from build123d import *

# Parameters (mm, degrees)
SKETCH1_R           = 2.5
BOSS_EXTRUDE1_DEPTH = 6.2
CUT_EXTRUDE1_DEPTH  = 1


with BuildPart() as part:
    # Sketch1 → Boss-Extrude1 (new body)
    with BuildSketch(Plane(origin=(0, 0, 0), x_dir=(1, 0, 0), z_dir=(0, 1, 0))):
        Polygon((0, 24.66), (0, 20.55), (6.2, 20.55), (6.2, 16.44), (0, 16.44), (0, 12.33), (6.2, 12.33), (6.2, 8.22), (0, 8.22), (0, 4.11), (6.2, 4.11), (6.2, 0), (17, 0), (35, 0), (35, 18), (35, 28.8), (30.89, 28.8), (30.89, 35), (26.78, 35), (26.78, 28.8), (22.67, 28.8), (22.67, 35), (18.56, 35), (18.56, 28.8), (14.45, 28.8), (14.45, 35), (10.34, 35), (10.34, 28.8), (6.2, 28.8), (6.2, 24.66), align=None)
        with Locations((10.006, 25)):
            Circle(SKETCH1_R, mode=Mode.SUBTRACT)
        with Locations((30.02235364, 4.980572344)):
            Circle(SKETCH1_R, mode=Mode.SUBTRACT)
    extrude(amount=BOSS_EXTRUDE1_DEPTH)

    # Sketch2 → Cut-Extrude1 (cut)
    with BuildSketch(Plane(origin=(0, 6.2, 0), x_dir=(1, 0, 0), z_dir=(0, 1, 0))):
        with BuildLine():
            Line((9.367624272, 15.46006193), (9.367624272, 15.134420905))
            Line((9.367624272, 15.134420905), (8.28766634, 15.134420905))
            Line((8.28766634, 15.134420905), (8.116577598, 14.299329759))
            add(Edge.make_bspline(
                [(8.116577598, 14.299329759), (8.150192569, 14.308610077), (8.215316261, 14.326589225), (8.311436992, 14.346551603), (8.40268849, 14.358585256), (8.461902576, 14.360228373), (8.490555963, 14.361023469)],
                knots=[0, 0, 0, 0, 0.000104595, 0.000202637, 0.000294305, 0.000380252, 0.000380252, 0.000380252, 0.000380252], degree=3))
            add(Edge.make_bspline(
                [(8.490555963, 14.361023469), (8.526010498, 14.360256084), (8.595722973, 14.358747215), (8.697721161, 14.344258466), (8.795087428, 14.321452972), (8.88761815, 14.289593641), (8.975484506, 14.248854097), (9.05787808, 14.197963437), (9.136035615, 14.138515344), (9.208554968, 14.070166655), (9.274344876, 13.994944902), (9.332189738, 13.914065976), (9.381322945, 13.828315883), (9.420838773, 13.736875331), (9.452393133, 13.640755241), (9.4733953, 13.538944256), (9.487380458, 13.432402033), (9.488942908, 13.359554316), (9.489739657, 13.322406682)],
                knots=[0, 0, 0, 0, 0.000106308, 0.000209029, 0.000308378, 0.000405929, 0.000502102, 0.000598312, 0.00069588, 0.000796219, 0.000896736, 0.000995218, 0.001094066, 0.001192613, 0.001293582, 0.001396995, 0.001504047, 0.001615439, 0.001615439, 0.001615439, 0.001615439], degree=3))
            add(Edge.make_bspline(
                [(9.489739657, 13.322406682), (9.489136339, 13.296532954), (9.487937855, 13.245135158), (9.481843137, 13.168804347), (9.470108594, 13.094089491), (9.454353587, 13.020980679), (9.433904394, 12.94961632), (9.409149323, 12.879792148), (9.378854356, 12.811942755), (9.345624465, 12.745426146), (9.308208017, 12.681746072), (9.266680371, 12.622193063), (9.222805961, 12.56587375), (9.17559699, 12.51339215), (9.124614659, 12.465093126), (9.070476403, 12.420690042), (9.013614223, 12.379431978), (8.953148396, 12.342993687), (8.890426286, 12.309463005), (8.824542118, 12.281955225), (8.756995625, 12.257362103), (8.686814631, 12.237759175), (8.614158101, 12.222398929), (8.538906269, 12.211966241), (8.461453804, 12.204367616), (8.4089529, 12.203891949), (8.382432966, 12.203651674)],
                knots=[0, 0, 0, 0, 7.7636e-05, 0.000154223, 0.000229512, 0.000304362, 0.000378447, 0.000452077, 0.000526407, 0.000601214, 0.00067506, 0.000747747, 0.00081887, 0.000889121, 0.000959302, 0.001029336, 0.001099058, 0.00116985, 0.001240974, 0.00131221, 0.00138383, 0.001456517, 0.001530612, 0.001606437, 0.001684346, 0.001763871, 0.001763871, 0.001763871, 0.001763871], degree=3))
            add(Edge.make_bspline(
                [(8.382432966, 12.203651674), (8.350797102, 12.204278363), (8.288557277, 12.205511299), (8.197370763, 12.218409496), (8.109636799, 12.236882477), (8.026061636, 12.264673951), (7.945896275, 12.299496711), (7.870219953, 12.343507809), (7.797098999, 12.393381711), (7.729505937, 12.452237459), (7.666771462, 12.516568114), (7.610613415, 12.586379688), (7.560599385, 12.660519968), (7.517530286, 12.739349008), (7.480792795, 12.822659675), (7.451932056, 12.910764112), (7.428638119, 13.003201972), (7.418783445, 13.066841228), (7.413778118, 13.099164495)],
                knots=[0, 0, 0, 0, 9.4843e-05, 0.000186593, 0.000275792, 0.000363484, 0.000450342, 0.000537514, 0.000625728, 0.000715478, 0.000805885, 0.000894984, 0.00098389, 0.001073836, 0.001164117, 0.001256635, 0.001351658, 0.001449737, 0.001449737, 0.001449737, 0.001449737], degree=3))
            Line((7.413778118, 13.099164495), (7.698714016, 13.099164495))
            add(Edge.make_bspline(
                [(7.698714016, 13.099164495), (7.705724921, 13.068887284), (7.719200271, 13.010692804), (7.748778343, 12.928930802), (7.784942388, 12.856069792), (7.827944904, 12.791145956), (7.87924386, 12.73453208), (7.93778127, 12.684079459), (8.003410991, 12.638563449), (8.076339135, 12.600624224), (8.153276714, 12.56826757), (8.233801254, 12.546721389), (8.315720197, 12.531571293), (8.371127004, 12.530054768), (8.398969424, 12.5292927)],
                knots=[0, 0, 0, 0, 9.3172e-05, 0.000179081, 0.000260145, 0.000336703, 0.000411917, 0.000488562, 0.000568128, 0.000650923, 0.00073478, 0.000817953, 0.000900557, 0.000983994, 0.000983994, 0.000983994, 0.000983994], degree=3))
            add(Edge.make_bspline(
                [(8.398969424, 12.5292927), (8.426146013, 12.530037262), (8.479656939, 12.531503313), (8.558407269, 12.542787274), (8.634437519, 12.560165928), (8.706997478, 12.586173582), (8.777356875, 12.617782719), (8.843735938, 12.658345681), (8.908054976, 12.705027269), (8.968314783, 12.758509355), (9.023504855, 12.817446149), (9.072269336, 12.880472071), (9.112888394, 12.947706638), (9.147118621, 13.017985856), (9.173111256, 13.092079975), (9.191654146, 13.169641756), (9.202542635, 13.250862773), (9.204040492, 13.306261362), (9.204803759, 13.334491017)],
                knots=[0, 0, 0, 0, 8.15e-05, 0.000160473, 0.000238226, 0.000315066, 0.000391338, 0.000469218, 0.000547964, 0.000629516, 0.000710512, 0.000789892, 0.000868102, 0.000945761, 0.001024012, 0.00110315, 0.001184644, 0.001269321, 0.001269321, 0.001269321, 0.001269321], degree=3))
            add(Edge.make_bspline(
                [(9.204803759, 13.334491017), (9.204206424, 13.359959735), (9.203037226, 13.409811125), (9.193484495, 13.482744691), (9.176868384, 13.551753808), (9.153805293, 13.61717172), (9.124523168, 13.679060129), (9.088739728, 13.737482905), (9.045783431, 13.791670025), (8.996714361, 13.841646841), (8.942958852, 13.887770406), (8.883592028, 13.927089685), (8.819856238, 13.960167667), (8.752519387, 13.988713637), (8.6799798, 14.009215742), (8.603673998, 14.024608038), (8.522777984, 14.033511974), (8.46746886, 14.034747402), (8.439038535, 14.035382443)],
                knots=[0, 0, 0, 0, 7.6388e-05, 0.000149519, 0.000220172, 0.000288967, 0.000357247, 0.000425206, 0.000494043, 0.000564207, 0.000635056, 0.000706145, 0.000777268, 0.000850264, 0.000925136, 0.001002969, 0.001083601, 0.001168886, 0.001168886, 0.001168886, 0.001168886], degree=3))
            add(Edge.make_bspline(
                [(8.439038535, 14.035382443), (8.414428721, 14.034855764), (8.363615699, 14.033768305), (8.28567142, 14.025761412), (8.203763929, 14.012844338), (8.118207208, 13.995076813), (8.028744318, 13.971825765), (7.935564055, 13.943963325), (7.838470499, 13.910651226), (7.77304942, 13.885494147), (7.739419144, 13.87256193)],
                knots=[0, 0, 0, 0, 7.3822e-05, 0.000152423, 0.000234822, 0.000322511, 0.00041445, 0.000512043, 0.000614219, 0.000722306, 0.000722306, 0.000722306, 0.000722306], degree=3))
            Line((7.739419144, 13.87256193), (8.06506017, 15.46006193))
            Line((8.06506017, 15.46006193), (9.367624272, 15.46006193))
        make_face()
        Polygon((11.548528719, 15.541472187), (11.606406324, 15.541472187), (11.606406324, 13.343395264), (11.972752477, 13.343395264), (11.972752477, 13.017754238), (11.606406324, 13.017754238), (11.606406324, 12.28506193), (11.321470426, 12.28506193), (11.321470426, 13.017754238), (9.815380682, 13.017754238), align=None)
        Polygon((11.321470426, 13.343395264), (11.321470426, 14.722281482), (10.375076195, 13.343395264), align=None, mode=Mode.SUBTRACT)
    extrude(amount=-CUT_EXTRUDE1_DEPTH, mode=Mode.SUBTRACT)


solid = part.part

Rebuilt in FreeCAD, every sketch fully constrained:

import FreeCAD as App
import Part
import Sketcher

V = App.Vector
Q = App.Units.Quantity

doc = App.newDocument("Part")
body = doc.addObject("PartDesign::Body", "Body")

sketch1 = doc.addObject("Sketcher::SketchObject", "Sketch")
body.addObject(sketch1)
sketch1.AttachmentSupport = (doc.XZ_Plane, [""])
sketch1.MapMode = "FlatFace"
sketch1.addGeometry([
    Part.LineSegment(V(0, -24.7, 0), V(0, -20.6, 0)),
    Part.LineSegment(V(0, -20.6, 0), V(6.2, -20.6, 0)),
    Part.LineSegment(V(6.2, -20.6, 0), V(6.2, -16.4, 0)),
    Part.LineSegment(V(6.2, -16.4, 0), V(0, -16.4, 0)),
    Part.LineSegment(V(0, -16.4, 0), V(0, -12.3, 0)),
    Part.LineSegment(V(0, -12.3, 0), V(6.2, -12.3, 0)),
    Part.LineSegment(V(6.2, -12.3, 0), V(6.2, -8.2, 0)),
    Part.LineSegment(V(6.2, -8.2, 0), V(0, -8.2, 0)),
    Part.LineSegment(V(0, -8.2, 0), V(0, -4.1, 0)),
    Part.LineSegment(V(0, -4.1, 0), V(6.2, -4.1, 0)),
    Part.LineSegment(V(6.2, -4.1, 0), V(6.2, 0, 0)),
    Part.LineSegment(V(6.2, 0, 0), V(35, 0, 0)),
    Part.LineSegment(V(35, 0, 0), V(35, -28.8, 0)),
    Part.LineSegment(V(35, -28.8, 0), V(30.9, -28.8, 0)),
    Part.LineSegment(V(30.9, -28.8, 0), V(30.9, -35, 0)),
    Part.LineSegment(V(30.9, -35, 0), V(26.8, -35, 0)),
    Part.LineSegment(V(26.8, -35, 0), V(26.8, -28.8, 0)),
    Part.LineSegment(V(26.8, -28.8, 0), V(22.7, -28.8, 0)),
    Part.LineSegment(V(22.7, -28.8, 0), V(22.7, -35, 0)),
    Part.LineSegment(V(22.7, -35, 0), V(18.6, -35, 0)),
    Part.LineSegment(V(18.6, -35, 0), V(18.6, -28.8, 0)),
    Part.LineSegment(V(18.6, -28.8, 0), V(14.4, -28.8, 0)),
    Part.LineSegment(V(14.4, -28.8, 0), V(14.4, -35, 0)),
    Part.LineSegment(V(14.4, -35, 0), V(10.3, -35, 0)),
    Part.LineSegment(V(10.3, -35, 0), V(10.3, -28.8, 0)),
    Part.LineSegment(V(10.3, -28.8, 0), V(6.2, -28.8, 0)),
    Part.LineSegment(V(6.2, -28.8, 0), V(6.2, -24.7, 0)),
    Part.LineSegment(V(6.2, -24.7, 0), V(0, -24.7, 0)),
    Part.Circle(V(30, -5, 0), V(0, 0, 1), 2.5),
    Part.Circle(V(10, -25, 0), V(0, 0, 1), 2.5),
], False)
sketch1.addConstraint([
    Sketcher.Constraint("Coincident", 0, 2, 1, 1),
    Sketcher.Constraint("Coincident", 1, 2, 2, 1),
    Sketcher.Constraint("Coincident", 2, 2, 3, 1),
    Sketcher.Constraint("Coincident", 3, 2, 4, 1),
    Sketcher.Constraint("Coincident", 4, 2, 5, 1),
    Sketcher.Constraint("Coincident", 5, 2, 6, 1),
    Sketcher.Constraint("Coincident", 6, 2, 7, 1),
    Sketcher.Constraint("Coincident", 7, 2, 8, 1),
    Sketcher.Constraint("Coincident", 8, 2, 9, 1),
    Sketcher.Constraint("Coincident", 9, 2, 10, 1),
    Sketcher.Constraint("Coincident", 10, 2, 11, 1),
    Sketcher.Constraint("Coincident", 11, 2, 12, 1),
    Sketcher.Constraint("Coincident", 12, 2, 13, 1),
    Sketcher.Constraint("Coincident", 13, 2, 14, 1),
    Sketcher.Constraint("Coincident", 14, 2, 15, 1),
    Sketcher.Constraint("Coincident", 15, 2, 16, 1),
    Sketcher.Constraint("Coincident", 16, 2, 17, 1),
    Sketcher.Constraint("Coincident", 17, 2, 18, 1),
    Sketcher.Constraint("Coincident", 18, 2, 19, 1),
    Sketcher.Constraint("Coincident", 19, 2, 20, 1),
    Sketcher.Constraint("Coincident", 20, 2, 21, 1),
    Sketcher.Constraint("Coincident", 21, 2, 22, 1),
    Sketcher.Constraint("Coincident", 22, 2, 23, 1),
    Sketcher.Constraint("Coincident", 23, 2, 24, 1),
    Sketcher.Constraint("Coincident", 24, 2, 25, 1),
    Sketcher.Constraint("Coincident", 25, 2, 26, 1),
    Sketcher.Constraint("Coincident", 26, 2, 27, 1),
    Sketcher.Constraint("Coincident", 27, 2, 0, 1),
    Sketcher.Constraint("Vertical", 0),
    Sketcher.Constraint("Horizontal", 1),
    Sketcher.Constraint("Vertical", 2),
    Sketcher.Constraint("Horizontal", 3),
    Sketcher.Constraint("Vertical", 4),
    Sketcher.Constraint("Horizontal", 5),
    Sketcher.Constraint("Vertical", 6),
    Sketcher.Constraint("Horizontal", 7),
    Sketcher.Constraint("Vertical", 8),
    Sketcher.Constraint("Horizontal", 9),
    Sketcher.Constraint("Vertical", 10),
    Sketcher.Constraint("Horizontal", 11),
    Sketcher.Constraint("Vertical", 12),
    Sketcher.Constraint("Horizontal", 13),
    Sketcher.Constraint("Vertical", 14),
    Sketcher.Constraint("Horizontal", 15),
    Sketcher.Constraint("Vertical", 16),
    Sketcher.Constraint("Horizontal", 17),
    Sketcher.Constraint("Vertical", 18),
    Sketcher.Constraint("Horizontal", 19),
    Sketcher.Constraint("Vertical", 20),
    Sketcher.Constraint("Horizontal", 21),
    Sketcher.Constraint("Vertical", 22),
    Sketcher.Constraint("Horizontal", 23),
    Sketcher.Constraint("Vertical", 24),
    Sketcher.Constraint("Horizontal", 25),
    Sketcher.Constraint("Vertical", 26),
    Sketcher.Constraint("Horizontal", 27),
    Sketcher.Constraint("Equal", 28, 29),
    Sketcher.Constraint("PointOnObject", 0, 2, -2),
    Sketcher.Constraint("PointOnObject", 3, 2, -2),
    Sketcher.Constraint("PointOnObject", 7, 2, -2),
    Sketcher.Constraint("PointOnObject", 10, 2, -1),
    Sketcher.Constraint("Horizontal", 13, 2, 16, 2),
    Sketcher.Constraint("Horizontal", 15, 2, 18, 2),
    Sketcher.Constraint("Horizontal", 17, 2, 20, 2),
    Sketcher.Constraint("Horizontal", 19, 2, 22, 2),
    Sketcher.Constraint("Horizontal", 21, 2, 24, 2),
    Sketcher.Constraint("Vertical", 2, 2, 5, 2),
    Sketcher.Constraint("Vertical", 6, 2, 9, 2),
    Sketcher.Constraint("Vertical", 10, 2, 25, 2),
    Sketcher.Constraint("Equal", 13, 15),
    Sketcher.Constraint("Equal", 15, 17),
    Sketcher.Constraint("Equal", 17, 19),
    Sketcher.Constraint("Equal", 19, 21),
    Sketcher.Constraint("Equal", 21, 23),
    Sketcher.Constraint("Equal", 23, 0),
    Sketcher.Constraint("Equal", 0, 2),
    Sketcher.Constraint("Equal", 2, 4),
    Sketcher.Constraint("Equal", 4, 6),
    Sketcher.Constraint("Equal", 6, 8),
    Sketcher.Constraint("Equal", 8, 10),
    Sketcher.Constraint("Equal", 11, 12),
    Sketcher.Constraint("Equal", 27, 14),
    Sketcher.Constraint("Diameter", 28, Q("5 mm")),
    Sketcher.Constraint("DistanceX", 1, 1, 1, 2, Q("6.2 mm")),
    Sketcher.Constraint("DistanceX", 11, 1, 11, 2, Q("28.8 mm")),
    Sketcher.Constraint("DistanceY", 29, 3, -1, 1, Q("25 mm")),
    Sketcher.Constraint("DistanceX", 13, 2, 13, 1, Q("4.11 mm")),
    Sketcher.Constraint("DistanceX", -1, 1, 29, 3, Q("10.006 mm")),
    Sketcher.Constraint("DistanceX", -1, 1, 28, 3, Q("30.022354 mm")),
    Sketcher.Constraint("DistanceY", 28, 3, -1, 1, Q("4.980572 mm")),
])
pad1 = doc.addObject("PartDesign::Pad", "Pad")
body.addObject(pad1)
pad1.Profile = sketch1
pad1.Length = 6.2
pad1.Reversed = True

sketch2 = doc.addObject("Sketcher::SketchObject", "Sketch001")
body.addObject(sketch2)
sketch2.AttachmentSupport = (doc.XZ_Plane, [""])
sketch2.MapMode = "FlatFace"
sketch2.AttachmentOffset = App.Placement(V(0, 0, -6.2), App.Rotation())
sketch2.addGeometry([
    Part.LineSegment(V(9.367624, -15.134421, 0), V(9.367624, -15.460062, 0)),
    Part.LineSegment(V(9.367624, -15.460062, 0), V(8.06506, -15.460062, 0)),
    Part.LineSegment(V(8.06506, -15.460062, 0), V(7.739419, -13.872562, 0)),
    Part.BSplineCurve([V(8.439039, -14.035382, 0), V(8.414429, -14.034856, 0), V(8.363616, -14.033768, 0), V(8.285671, -14.025761, 0), V(8.203764, -14.012844, 0), V(8.118207, -13.995077, 0), V(8.028744, -13.971826, 0), V(7.935564, -13.943963, 0), V(7.83847, -13.910651, 0), V(7.773049, -13.885494, 0), V(7.739419, -13.872562, 0)], [4, 1, 1, 1, 1, 1, 1, 1, 4], [0, 0.000073822, 0.000152423, 0.000234822, 0.000322511, 0.00041445, 0.000512043, 0.000614219, 0.000722306], False, 3, [1, 1, 1, 1, 1, 1, 1, 1, 1, 1, 1], False),
    Part.BSplineCurve([V(9.204804, -13.334491, 0), V(9.204206, -13.35996, 0), V(9.203037, -13.409811, 0), V(9.193484, -13.482745, 0), V(9.176868, -13.551754, 0), V(9.153805, -13.617172, 0), V(9.124523, -13.67906, 0), V(9.08874, -13.737483, 0), V(9.045783, -13.79167, 0), V(8.996714, -13.841647, 0), V(8.942959, -13.88777, 0), V(8.883592, -13.92709, 0), V(8.819856, -13.960168, 0), V(8.752519, -13.988714, 0), V(8.67998, -14.009216, 0), V(8.603674, -14.024608, 0), V(8.522778, -14.033512, 0), V(8.467469, -14.034747, 0), V(8.439039, -14.035382, 0)], [4, 1, 1, 1, 1, 1, 1, 1, 1, 1, 1, 1, 1, 1, 1, 1, 4], [0, 0.000076388, 0.000149519, 0.000220172, 0.000288967, 0.000357247, 0.000425206, 0.000494043, 0.000564207, 0.000635056, 0.000706145, 0.000777268, 0.000850264, 0.000925136, 0.001002969, 0.001083601, 0.001168886], False, 3, [1, 1, 1, 1, 1, 1, 1, 1, 1, 1, 1, 1, 1, 1, 1, 1, 1, 1, 1], False),
    Part.BSplineCurve([V(8.398969, -12.529293, 0), V(8.426146, -12.530037, 0), V(8.479657, -12.531503, 0), V(8.558407, -12.542787, 0), V(8.634438, -12.560166, 0), V(8.706997, -12.586174, 0), V(8.777357, -12.617783, 0), V(8.843736, -12.658346, 0), V(8.908055, -12.705027, 0), V(8.968315, -12.758509, 0), V(9.023505, -12.817446, 0), V(9.072269, -12.880472, 0), V(9.112888, -12.947707, 0), V(9.147119, -13.017986, 0), V(9.173111, -13.09208, 0), V(9.191654, -13.169642, 0), V(9.202543, -13.250863, 0), V(9.20404, -13.306261, 0), V(9.204804, -13.334491, 0)], [4, 1, 1, 1, 1, 1, 1, 1, 1, 1, 1, 1, 1, 1, 1, 1, 4], [0, 0.0000815, 0.000160473, 0.000238226, 0.000315066, 0.000391338, 0.000469218, 0.000547964, 0.000629516, 0.000710512, 0.000789892, 0.000868102, 0.000945761, 0.001024012, 0.00110315, 0.001184644, 0.001269321], False, 3, [1, 1, 1, 1, 1, 1, 1, 1, 1, 1, 1, 1, 1, 1, 1, 1, 1, 1, 1], False),
    Part.BSplineCurve([V(7.698714, -13.099164, 0), V(7.705725, -13.068887, 0), V(7.7192, -13.010693, 0), V(7.748778, -12.928931, 0), V(7.784942, -12.85607, 0), V(7.827945, -12.791146, 0), V(7.879244, -12.734532, 0), V(7.937781, -12.684079, 0), V(8.003411, -12.638563, 0), V(8.076339, -12.600624, 0), V(8.153277, -12.568268, 0), V(8.233801, -12.546721, 0), V(8.31572, -12.531571, 0), V(8.371127, -12.530055, 0), V(8.398969, -12.529293, 0)], [4, 1, 1, 1, 1, 1, 1, 1, 1, 1, 1, 1, 4], [0, 0.000093172, 0.000179081, 0.000260145, 0.000336703, 0.000411917, 0.000488562, 0.000568128, 0.000650923, 0.00073478, 0.000817953, 0.000900557, 0.000983994], False, 3, [1, 1, 1, 1, 1, 1, 1, 1, 1, 1, 1, 1, 1, 1, 1], False),
    Part.LineSegment(V(7.698714, -13.099164, 0), V(7.413778, -13.099164, 0)),
    Part.BSplineCurve([V(8.382433, -12.203652, 0), V(8.350797, -12.204278, 0), V(8.288557, -12.205511, 0), V(8.197371, -12.218409, 0), V(8.109637, -12.236882, 0), V(8.026062, -12.264674, 0), V(7.945896, -12.299497, 0), V(7.87022, -12.343508, 0), V(7.797099, -12.393382, 0), V(7.729506, -12.452237, 0), V(7.666771, -12.516568, 0), V(7.610613, -12.58638, 0), V(7.560599, -12.66052, 0), V(7.51753, -12.739349, 0), V(7.480793, -12.82266, 0), V(7.451932, -12.910764, 0), V(7.428638, -13.003202, 0), V(7.418783, -13.066841, 0), V(7.413778, -13.099164, 0)], [4, 1, 1, 1, 1, 1, 1, 1, 1, 1, 1, 1, 1, 1, 1, 1, 4], [0, 0.000094843, 0.000186593, 0.000275792, 0.000363484, 0.000450342, 0.000537514, 0.000625728, 0.000715478, 0.000805885, 0.000894984, 0.00098389, 0.001073836, 0.001164117, 0.001256635, 0.001351658, 0.001449737], False, 3, [1, 1, 1, 1, 1, 1, 1, 1, 1, 1, 1, 1, 1, 1, 1, 1, 1, 1, 1], False),
    Part.BSplineCurve([V(9.48974, -13.322407, 0), V(9.489136, -13.296533, 0), V(9.487938, -13.245135, 0), V(9.481843, -13.168804, 0), V(9.470109, -13.094089, 0), V(9.454354, -13.020981, 0), V(9.433904, -12.949616, 0), V(9.409149, -12.879792, 0), V(9.378854, -12.811943, 0), V(9.345624, -12.745426, 0), V(9.308208, -12.681746, 0), V(9.26668, -12.622193, 0), V(9.222806, -12.565874, 0), V(9.175597, -12.513392, 0), V(9.124615, -12.465093, 0), V(9.070476, -12.42069, 0), V(9.013614, -12.379432, 0), V(8.953148, -12.342994, 0), V(8.890426, -12.309463, 0), V(8.824542, -12.281955, 0), V(8.756996, -12.257362, 0), V(8.686815, -12.237759, 0), V(8.614158, -12.222399, 0), V(8.538906, -12.211966, 0), V(8.461454, -12.204368, 0), V(8.408953, -12.203892, 0), V(8.382433, -12.203652, 0)], [4, 1, 1, 1, 1, 1, 1, 1, 1, 1, 1, 1, 1, 1, 1, 1, 1, 1, 1, 1, 1, 1, 1, 1, 4], [0, 0.000077636, 0.000154223, 0.000229512, 0.000304362, 0.000378447, 0.000452077, 0.000526407, 0.000601214, 0.00067506, 0.000747747, 0.00081887, 0.000889121, 0.000959302, 0.001029336, 0.001099058, 0.00116985, 0.001240974, 0.00131221, 0.00138383, 0.001456517, 0.001530612, 0.001606437, 0.001684346, 0.001763871], False, 3, [1, 1, 1, 1, 1, 1, 1, 1, 1, 1, 1, 1, 1, 1, 1, 1, 1, 1, 1, 1, 1, 1, 1, 1, 1, 1, 1], False),
    Part.BSplineCurve([V(8.490556, -14.361023, 0), V(8.52601, -14.360256, 0), V(8.595723, -14.358747, 0), V(8.697721, -14.344258, 0), V(8.795087, -14.321453, 0), V(8.887618, -14.289594, 0), V(8.975485, -14.248854, 0), V(9.057878, -14.197963, 0), V(9.136036, -14.138515, 0), V(9.208555, -14.070167, 0), V(9.274345, -13.994945, 0), V(9.33219, -13.914066, 0), V(9.381323, -13.828316, 0), V(9.420839, -13.736875, 0), V(9.452393, -13.640755, 0), V(9.473395, -13.538944, 0), V(9.48738, -13.432402, 0), V(9.488943, -13.359554, 0), V(9.48974, -13.322407, 0)], [4, 1, 1, 1, 1, 1, 1, 1, 1, 1, 1, 1, 1, 1, 1, 1, 4], [0, 0.000106308, 0.000209029, 0.000308378, 0.000405929, 0.000502102, 0.000598312, 0.00069588, 0.000796219, 0.000896736, 0.000995218, 0.001094066, 0.001192613, 0.001293582, 0.001396995, 0.001504047, 0.001615439], False, 3, [1, 1, 1, 1, 1, 1, 1, 1, 1, 1, 1, 1, 1, 1, 1, 1, 1, 1, 1], False),
    Part.BSplineCurve([V(8.116578, -14.29933, 0), V(8.150193, -14.30861, 0), V(8.215316, -14.326589, 0), V(8.311437, -14.346552, 0), V(8.402688, -14.358585, 0), V(8.461903, -14.360228, 0), V(8.490556, -14.361023, 0)], [4, 1, 1, 1, 4], [0, 0.000104595, 0.000202637, 0.000294305, 0.000380252], False, 3, [1, 1, 1, 1, 1, 1, 1], False),
    Part.LineSegment(V(8.116578, -14.29933, 0), V(8.287666, -15.134421, 0)),
    Part.LineSegment(V(8.287666, -15.134421, 0), V(9.367624, -15.134421, 0)),
    Part.LineSegment(V(11.606406, -15.541472, 0), V(11.548529, -15.541472, 0)),
    Part.LineSegment(V(11.548529, -15.541472, 0), V(9.815381, -13.017754, 0)),
    Part.LineSegment(V(9.815381, -13.017754, 0), V(11.32147, -13.017754, 0)),
    Part.LineSegment(V(11.32147, -13.017754, 0), V(11.32147, -12.285062, 0)),
    Part.LineSegment(V(11.32147, -12.285062, 0), V(11.606406, -12.285062, 0)),
    Part.LineSegment(V(11.606406, -12.285062, 0), V(11.606406, -13.017754, 0)),
    Part.LineSegment(V(11.606406, -13.017754, 0), V(11.972752, -13.017754, 0)),
    Part.LineSegment(V(11.972752, -13.017754, 0), V(11.972752, -13.343395, 0)),
    Part.LineSegment(V(11.972752, -13.343395, 0), V(11.606406, -13.343395, 0)),
    Part.LineSegment(V(11.606406, -13.343395, 0), V(11.606406, -15.541472, 0)),
    Part.LineSegment(V(11.32147, -13.343395, 0), V(10.375076, -13.343395, 0)),
    Part.LineSegment(V(10.375076, -13.343395, 0), V(11.32147, -14.722281, 0)),
    Part.LineSegment(V(11.32147, -14.722281, 0), V(11.32147, -13.343395, 0)),
], False)
sketch2.addConstraint([
    Sketcher.Constraint("Block", 3),
    Sketcher.Constraint("Block", 4),
    Sketcher.Constraint("Block", 5),
    Sketcher.Constraint("Block", 6),
    Sketcher.Constraint("Block", 8),
    Sketcher.Constraint("Block", 9),
    Sketcher.Constraint("Block", 10),
    Sketcher.Constraint("Block", 11),
    Sketcher.Constraint("Coincident", 0, 2, 1, 1),
    Sketcher.Constraint("Coincident", 1, 2, 2, 1),
    Sketcher.Constraint("Coincident", 2, 2, 3, 2),
    Sketcher.Constraint("Coincident", 6, 1, 7, 1),
    Sketcher.Constraint("Coincident", 7, 2, 8, 2),
    Sketcher.Constraint("Coincident", 11, 1, 12, 1),
    Sketcher.Constraint("Coincident", 12, 2, 13, 1),
    Sketcher.Constraint("Coincident", 13, 2, 0, 1),
    Sketcher.Constraint("Coincident", 14, 2, 15, 1),
    Sketcher.Constraint("Coincident", 15, 2, 16, 1),
    Sketcher.Constraint("Coincident", 16, 2, 17, 1),
    Sketcher.Constraint("Coincident", 17, 2, 18, 1),
    Sketcher.Constraint("Coincident", 18, 2, 19, 1),
    Sketcher.Constraint("Coincident", 19, 2, 20, 1),
    Sketcher.Constraint("Coincident", 20, 2, 21, 1),
    Sketcher.Constraint("Coincident", 21, 2, 22, 1),
    Sketcher.Constraint("Coincident", 22, 2, 23, 1),
    Sketcher.Constraint("Coincident", 23, 2, 14, 1),
    Sketcher.Constraint("Coincident", 24, 2, 25, 1),
    Sketcher.Constraint("Coincident", 25, 2, 26, 1),
    Sketcher.Constraint("Coincident", 26, 2, 24, 1),
    Sketcher.Constraint("Vertical", 0),
    Sketcher.Constraint("Horizontal", 1),
    Sketcher.Constraint("Horizontal", 13),
    Sketcher.Constraint("Horizontal", 14),
    Sketcher.Constraint("Horizontal", 16),
    Sketcher.Constraint("Vertical", 17),
    Sketcher.Constraint("Horizontal", 18),
    Sketcher.Constraint("Vertical", 19),
    Sketcher.Constraint("Horizontal", 20),
    Sketcher.Constraint("Vertical", 21),
    Sketcher.Constraint("Horizontal", 22),
    Sketcher.Constraint("Vertical", 23),
    Sketcher.Constraint("Horizontal", 24),
    Sketcher.Constraint("Vertical", 26),
    Sketcher.Constraint("DistanceY", 0, 2, 17, 2, Q("3.175 mm")),
    Sketcher.Constraint("DistanceX", 16, 1, 16, 2, Q("1.50609 mm")),
    Sketcher.Constraint("DistanceY", 0, 2, 0, 1, Q("0.325641 mm")),
    Sketcher.Constraint("DistanceY", 21, 2, 21, 1, Q("0.325641 mm")),
    Sketcher.Constraint("DistanceY", 1, 2, 2, 2, Q("1.5875 mm")),
    Sketcher.Constraint("Distance", 15, Q("3.061528 mm")),
    Sketcher.Constraint("Distance", 25, Q("1.67242 mm")),
    Sketcher.Constraint("DistanceX", 1, 2, 1, 1, Q("1.302564 mm")),
    Sketcher.Constraint("DistanceX", 13, 1, 13, 2, Q("1.079958 mm")),
    Sketcher.Constraint("DistanceX", 14, 2, 14, 1, Q("0.057878 mm")),
    Sketcher.Constraint("DistanceX", 18, 1, 18, 2, Q("0.284936 mm")),
    Sketcher.Constraint("DistanceX", 20, 1, 20, 2, Q("0.366346 mm")),
    Sketcher.Constraint("DistanceX", 22, 2, 22, 1, Q("0.366346 mm")),
    Sketcher.Constraint("DistanceX", 24, 2, 24, 1, Q("0.946394 mm")),
    Sketcher.Constraint("DistanceY", 17, 1, 17, 2, Q("0.732692 mm")),
    Sketcher.Constraint("DistanceY", 19, 2, 19, 1, Q("0.732692 mm")),
    Sketcher.Constraint("DistanceX", -1, 1, 1, 2, Q("8.06506 mm")),
    Sketcher.Constraint("DistanceX", -1, 1, 14, 2, Q("11.548529 mm")),
    Sketcher.Constraint("DistanceX", -1, 1, 25, 2, Q("11.32147 mm")),
    Sketcher.Constraint("DistanceY", 25, 2, -1, 1, Q("14.722281 mm")),
])
pocket1 = doc.addObject("PartDesign::Pocket", "Pocket")
body.addObject(pocket1)
pocket1.Profile = sketch2
pocket1.Length = 1
pocket1.Reversed = True

doc.recompute()
